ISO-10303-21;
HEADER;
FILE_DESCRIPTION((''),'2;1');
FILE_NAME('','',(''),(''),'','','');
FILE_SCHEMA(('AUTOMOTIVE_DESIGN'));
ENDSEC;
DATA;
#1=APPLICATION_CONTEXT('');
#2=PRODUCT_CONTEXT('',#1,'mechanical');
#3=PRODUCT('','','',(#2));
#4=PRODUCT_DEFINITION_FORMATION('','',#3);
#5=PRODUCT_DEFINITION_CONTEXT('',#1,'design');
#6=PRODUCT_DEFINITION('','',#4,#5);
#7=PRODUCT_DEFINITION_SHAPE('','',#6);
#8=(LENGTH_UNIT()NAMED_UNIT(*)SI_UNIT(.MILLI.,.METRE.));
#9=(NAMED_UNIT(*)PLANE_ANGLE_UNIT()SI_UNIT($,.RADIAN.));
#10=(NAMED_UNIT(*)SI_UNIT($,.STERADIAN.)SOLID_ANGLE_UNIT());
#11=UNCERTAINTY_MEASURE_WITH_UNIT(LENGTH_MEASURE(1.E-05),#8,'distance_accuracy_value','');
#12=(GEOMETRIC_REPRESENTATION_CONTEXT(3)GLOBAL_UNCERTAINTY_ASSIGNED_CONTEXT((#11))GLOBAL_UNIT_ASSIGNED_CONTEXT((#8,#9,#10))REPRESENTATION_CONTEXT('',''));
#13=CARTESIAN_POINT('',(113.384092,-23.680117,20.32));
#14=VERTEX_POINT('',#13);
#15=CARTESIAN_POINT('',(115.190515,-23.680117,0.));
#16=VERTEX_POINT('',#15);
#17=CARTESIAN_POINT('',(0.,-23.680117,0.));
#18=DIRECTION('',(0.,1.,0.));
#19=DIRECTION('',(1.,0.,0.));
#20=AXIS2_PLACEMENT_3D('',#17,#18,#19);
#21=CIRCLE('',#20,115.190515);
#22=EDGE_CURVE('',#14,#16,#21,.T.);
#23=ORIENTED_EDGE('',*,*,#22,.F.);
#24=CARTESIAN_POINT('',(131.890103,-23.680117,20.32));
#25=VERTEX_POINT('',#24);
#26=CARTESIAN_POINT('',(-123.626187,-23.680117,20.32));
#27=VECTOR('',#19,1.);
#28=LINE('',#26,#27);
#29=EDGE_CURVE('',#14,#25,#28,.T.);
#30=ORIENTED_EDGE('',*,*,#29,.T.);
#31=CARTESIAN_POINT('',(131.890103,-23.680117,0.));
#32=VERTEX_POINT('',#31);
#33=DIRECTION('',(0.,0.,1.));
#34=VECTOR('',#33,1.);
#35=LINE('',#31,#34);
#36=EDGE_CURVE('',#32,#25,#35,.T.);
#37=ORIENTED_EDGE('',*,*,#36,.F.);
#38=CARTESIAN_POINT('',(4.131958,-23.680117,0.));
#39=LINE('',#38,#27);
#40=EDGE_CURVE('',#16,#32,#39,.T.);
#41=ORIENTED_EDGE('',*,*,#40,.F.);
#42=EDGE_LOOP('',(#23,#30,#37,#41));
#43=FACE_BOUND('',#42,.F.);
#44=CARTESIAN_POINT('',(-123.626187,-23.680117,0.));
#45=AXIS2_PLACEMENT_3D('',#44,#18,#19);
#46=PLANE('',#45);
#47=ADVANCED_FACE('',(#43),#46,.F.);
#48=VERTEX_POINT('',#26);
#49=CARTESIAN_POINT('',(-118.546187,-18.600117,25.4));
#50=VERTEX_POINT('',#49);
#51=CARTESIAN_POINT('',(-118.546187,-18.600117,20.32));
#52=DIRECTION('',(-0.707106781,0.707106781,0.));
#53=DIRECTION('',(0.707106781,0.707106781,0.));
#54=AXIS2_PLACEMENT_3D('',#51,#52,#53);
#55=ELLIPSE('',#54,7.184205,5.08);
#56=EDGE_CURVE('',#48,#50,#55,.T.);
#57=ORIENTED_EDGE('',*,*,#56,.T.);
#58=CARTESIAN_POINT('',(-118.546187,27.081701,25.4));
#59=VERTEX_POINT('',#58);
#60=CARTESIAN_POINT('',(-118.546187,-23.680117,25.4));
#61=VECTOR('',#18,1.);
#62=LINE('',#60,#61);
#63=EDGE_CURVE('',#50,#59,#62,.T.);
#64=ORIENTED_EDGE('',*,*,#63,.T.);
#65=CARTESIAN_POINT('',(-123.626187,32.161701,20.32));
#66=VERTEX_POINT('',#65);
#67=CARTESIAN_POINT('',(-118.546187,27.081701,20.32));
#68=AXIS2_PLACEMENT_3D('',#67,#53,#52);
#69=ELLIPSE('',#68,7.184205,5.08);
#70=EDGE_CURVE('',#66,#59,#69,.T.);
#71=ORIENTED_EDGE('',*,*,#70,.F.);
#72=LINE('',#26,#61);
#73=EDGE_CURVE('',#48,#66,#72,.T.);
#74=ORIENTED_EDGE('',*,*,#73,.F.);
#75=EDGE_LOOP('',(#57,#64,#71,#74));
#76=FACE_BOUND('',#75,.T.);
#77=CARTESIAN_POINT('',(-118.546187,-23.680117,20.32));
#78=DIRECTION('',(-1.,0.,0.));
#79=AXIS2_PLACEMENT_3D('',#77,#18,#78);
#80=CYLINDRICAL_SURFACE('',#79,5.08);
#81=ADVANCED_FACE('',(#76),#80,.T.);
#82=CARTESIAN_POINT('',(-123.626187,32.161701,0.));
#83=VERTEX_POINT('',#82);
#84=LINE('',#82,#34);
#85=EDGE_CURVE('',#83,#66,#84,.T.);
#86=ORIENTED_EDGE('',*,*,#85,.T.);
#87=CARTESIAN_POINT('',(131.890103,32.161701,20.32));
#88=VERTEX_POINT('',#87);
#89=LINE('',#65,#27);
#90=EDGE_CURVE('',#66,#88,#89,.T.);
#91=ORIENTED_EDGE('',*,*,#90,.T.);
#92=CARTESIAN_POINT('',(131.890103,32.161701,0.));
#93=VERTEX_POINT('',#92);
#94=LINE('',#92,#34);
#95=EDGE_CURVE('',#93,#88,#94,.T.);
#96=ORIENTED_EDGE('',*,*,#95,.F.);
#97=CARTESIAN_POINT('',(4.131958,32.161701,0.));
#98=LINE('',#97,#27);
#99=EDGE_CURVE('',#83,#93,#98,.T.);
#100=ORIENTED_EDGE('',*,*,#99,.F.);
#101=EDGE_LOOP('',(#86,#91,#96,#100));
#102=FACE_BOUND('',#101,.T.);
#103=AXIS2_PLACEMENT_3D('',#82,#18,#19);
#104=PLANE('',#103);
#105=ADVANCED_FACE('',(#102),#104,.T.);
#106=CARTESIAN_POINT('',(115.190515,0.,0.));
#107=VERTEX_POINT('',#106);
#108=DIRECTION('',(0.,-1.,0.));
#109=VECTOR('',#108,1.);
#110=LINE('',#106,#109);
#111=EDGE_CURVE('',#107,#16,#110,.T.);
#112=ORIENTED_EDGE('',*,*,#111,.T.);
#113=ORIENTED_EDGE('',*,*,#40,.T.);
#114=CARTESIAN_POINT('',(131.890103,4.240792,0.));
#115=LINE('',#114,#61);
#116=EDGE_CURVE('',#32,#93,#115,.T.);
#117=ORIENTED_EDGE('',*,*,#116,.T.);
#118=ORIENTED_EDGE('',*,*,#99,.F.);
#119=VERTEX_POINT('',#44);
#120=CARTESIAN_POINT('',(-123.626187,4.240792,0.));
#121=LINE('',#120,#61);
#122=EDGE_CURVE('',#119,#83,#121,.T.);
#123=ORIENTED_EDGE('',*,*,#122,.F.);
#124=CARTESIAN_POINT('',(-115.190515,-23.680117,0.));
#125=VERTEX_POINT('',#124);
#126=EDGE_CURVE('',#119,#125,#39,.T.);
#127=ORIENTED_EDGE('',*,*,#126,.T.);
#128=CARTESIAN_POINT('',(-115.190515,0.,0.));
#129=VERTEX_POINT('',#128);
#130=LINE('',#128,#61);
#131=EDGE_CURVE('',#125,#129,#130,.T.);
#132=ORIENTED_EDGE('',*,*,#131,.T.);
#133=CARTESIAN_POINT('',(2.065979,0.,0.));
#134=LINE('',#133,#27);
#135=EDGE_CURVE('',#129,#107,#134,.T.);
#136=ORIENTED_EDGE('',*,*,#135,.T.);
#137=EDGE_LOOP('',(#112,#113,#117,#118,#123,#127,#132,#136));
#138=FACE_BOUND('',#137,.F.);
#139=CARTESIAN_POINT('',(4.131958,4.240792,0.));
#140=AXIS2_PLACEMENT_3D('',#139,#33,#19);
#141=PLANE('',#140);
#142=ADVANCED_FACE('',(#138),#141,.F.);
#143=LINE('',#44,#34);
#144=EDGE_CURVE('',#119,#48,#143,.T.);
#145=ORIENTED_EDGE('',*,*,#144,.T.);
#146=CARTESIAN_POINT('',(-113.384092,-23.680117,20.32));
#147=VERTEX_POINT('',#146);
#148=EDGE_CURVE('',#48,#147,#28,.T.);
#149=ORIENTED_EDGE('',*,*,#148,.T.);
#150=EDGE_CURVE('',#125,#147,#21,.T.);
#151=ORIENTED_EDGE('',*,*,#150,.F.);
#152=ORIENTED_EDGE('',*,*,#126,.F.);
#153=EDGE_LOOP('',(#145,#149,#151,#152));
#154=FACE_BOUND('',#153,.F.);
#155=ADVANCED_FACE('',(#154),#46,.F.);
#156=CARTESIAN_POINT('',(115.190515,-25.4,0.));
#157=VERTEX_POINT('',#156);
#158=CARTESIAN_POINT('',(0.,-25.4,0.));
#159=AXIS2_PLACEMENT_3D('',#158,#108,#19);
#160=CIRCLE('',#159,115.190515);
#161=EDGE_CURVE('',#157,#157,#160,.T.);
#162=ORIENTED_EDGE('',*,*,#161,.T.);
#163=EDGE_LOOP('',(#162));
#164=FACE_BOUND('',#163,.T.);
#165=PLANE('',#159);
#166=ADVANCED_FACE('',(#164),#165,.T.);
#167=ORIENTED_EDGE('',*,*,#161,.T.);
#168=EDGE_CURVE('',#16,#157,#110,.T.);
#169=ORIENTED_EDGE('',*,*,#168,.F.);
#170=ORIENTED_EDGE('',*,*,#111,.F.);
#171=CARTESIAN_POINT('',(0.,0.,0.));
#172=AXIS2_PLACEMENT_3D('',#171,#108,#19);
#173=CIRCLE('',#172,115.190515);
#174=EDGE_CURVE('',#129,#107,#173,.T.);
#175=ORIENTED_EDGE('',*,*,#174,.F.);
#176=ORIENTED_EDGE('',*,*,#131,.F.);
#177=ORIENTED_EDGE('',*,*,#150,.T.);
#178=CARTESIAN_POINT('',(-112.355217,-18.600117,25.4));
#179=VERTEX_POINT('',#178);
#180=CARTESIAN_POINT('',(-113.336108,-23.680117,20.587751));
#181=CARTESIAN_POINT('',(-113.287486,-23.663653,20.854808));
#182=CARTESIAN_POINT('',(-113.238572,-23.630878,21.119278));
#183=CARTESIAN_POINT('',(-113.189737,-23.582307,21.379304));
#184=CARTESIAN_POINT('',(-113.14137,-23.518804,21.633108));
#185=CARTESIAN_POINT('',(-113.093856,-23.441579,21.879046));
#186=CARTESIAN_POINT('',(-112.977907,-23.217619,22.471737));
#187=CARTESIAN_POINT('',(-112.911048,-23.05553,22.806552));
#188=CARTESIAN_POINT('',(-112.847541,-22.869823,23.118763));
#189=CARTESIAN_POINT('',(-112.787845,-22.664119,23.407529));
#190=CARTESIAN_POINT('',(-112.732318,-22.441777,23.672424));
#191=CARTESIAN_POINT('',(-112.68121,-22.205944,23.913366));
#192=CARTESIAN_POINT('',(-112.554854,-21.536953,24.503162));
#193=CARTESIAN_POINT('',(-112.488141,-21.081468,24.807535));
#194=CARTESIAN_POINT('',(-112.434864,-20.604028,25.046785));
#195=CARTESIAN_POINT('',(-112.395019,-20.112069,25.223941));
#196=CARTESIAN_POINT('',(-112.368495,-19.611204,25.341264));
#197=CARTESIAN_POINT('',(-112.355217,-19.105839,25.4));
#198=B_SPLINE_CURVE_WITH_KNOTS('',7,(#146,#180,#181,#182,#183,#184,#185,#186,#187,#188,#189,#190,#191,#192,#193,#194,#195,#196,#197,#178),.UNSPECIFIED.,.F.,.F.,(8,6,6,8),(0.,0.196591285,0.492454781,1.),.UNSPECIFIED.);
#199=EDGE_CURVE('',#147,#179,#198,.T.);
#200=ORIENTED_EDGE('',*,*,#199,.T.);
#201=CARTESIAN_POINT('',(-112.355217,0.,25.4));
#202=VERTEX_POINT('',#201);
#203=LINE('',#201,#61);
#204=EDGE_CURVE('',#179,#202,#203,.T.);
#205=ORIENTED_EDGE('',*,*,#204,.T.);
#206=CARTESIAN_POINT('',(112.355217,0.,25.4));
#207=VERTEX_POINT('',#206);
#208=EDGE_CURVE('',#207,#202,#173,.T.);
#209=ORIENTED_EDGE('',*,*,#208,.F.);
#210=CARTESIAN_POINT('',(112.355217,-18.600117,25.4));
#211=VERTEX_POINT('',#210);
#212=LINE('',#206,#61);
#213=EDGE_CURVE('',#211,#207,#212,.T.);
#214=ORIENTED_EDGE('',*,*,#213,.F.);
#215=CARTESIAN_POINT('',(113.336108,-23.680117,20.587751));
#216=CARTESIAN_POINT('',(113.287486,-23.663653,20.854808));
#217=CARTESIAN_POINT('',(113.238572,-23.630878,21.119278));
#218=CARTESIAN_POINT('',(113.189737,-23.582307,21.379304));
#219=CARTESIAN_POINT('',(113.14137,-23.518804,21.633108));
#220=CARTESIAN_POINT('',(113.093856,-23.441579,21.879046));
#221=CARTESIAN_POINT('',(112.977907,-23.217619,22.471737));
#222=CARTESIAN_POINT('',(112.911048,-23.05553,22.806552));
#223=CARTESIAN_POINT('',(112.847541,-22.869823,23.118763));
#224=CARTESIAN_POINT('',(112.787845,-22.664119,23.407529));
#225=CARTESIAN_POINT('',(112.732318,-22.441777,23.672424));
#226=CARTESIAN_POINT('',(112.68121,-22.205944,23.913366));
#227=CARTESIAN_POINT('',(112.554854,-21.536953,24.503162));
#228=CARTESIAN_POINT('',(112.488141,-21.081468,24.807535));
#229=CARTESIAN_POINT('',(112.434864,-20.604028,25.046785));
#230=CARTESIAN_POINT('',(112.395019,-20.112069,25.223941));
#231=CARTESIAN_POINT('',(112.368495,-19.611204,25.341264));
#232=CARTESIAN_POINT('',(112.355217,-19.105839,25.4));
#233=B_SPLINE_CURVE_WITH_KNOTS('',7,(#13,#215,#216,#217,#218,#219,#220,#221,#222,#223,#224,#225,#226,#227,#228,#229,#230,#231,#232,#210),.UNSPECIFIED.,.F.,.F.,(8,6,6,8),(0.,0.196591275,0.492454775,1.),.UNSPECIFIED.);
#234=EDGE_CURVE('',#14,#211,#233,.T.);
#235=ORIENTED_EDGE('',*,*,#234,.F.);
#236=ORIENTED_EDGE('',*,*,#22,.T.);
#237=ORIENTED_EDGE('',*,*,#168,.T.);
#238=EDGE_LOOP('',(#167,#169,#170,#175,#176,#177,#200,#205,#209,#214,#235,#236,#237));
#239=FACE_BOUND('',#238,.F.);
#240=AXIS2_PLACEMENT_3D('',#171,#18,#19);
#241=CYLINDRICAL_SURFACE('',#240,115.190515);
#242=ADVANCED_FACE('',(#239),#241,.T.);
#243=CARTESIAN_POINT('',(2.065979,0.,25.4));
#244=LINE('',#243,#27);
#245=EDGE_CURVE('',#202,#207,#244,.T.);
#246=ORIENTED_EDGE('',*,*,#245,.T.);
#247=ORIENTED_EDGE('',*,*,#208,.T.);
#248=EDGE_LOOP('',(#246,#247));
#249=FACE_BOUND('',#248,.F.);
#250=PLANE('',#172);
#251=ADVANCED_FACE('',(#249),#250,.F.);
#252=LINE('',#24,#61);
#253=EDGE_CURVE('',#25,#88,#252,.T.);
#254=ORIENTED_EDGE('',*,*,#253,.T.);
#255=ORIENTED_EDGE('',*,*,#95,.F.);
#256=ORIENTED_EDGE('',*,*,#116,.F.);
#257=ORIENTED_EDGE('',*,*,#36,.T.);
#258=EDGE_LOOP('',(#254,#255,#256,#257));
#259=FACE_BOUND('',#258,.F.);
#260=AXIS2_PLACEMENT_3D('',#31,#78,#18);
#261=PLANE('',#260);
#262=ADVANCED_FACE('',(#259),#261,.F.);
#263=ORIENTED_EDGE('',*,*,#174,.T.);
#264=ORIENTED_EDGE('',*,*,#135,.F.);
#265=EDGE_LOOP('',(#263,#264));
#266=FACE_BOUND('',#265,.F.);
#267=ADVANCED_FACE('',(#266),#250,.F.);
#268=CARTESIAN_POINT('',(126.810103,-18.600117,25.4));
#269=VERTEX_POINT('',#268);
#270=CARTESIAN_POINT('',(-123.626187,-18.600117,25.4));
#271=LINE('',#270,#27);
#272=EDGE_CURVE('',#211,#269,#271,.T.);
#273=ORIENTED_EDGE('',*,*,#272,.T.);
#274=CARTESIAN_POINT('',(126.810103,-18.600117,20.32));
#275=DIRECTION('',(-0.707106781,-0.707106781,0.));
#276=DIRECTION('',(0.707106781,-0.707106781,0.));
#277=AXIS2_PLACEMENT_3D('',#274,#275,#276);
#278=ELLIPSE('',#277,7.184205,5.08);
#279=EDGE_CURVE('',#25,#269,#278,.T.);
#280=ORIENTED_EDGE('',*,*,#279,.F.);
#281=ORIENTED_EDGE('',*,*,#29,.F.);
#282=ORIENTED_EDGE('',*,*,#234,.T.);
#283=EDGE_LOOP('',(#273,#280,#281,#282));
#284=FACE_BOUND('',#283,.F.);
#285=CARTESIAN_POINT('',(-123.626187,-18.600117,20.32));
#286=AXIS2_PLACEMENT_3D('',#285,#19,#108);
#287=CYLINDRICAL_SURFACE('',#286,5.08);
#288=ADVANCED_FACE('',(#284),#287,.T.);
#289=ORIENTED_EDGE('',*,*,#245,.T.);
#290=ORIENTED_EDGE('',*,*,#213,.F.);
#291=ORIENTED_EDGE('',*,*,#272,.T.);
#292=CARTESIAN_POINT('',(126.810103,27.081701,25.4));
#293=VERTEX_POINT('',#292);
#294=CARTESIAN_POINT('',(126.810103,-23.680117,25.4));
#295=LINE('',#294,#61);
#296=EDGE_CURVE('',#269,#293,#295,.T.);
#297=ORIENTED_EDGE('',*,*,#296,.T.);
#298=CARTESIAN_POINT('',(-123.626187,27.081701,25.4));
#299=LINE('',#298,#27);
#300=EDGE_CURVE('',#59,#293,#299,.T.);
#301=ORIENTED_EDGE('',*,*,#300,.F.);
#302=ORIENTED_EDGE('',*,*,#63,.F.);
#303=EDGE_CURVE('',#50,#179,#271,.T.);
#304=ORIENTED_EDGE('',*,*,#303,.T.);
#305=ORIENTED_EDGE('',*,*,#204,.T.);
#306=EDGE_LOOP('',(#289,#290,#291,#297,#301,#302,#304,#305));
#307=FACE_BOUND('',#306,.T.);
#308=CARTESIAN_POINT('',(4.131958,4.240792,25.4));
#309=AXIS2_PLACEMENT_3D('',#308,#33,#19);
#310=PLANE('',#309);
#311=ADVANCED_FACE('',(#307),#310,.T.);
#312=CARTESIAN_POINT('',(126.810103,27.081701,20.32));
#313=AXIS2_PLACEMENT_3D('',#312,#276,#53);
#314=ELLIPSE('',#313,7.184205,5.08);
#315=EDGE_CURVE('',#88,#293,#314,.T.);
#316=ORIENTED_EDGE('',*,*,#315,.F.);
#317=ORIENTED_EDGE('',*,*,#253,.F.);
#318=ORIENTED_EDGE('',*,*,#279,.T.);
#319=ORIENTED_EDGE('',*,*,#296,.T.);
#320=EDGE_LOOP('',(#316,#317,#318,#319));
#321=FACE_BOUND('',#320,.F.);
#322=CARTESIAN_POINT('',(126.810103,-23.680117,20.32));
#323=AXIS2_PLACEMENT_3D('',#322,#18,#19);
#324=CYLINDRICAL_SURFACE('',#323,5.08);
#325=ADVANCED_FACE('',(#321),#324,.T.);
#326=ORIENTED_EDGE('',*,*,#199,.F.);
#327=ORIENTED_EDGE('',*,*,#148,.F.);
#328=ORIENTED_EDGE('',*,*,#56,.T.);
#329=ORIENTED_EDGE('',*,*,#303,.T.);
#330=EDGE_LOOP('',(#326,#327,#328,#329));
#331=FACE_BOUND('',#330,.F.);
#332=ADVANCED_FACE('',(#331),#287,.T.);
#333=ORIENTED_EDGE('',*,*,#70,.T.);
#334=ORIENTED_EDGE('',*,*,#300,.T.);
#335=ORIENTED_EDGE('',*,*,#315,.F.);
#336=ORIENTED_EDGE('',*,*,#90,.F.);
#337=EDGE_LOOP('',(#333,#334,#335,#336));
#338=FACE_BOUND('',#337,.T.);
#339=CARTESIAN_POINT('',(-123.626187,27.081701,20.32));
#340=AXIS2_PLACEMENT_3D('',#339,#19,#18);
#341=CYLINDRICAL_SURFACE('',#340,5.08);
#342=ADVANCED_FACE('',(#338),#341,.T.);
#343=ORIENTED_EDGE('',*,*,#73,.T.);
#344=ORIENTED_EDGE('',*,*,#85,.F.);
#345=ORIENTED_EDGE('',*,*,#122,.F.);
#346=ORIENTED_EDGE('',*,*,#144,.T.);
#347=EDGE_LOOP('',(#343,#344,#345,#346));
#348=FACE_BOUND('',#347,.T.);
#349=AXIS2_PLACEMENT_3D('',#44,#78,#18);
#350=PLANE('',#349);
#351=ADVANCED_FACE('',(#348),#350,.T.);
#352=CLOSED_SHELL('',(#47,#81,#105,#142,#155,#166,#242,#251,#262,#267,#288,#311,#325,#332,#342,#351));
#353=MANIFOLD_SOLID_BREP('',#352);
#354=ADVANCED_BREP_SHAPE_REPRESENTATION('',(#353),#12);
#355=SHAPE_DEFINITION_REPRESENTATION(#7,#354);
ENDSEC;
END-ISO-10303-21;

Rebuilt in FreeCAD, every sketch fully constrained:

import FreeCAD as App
import Part
import Sketcher
Q = App.Units.Quantity


def edges_at(feature, points):
    """Names of the edges that pass closest to the given points."""
    edges = feature.Shape.Edges
    near = lambda p: min(range(len(edges)), key=lambda i: edges[i].distToShape(Part.Vertex(*p))[0])
    return sorted({f"Edge{near(p) + 1}" for p in points})


def add_polygon(sketch, points):
    """Adds a closed chain of lines whose ends are joined by coincident constraints."""
    first, n = sketch.GeometryCount, len(points)
    for a, b in zip(points, points[1:] + points[:1]):
        sketch.addGeometry(Part.LineSegment(App.Vector(*a, 0), App.Vector(*b, 0)), False)
    for i in range(n):
        sketch.addConstraint(Sketcher.Constraint("Coincident", first + i, 2, first + (i + 1) % n, 1))

doc = App.newDocument("Part")
body = doc.addObject("PartDesign::Body", "Body")

sketch1 = body.newObject("Sketcher::SketchObject", "Sketch")
sketch1.AttachmentSupport = (doc.getObject("XY_Plane"), [""])
sketch1.MapMode = "FlatFace"
add_polygon(sketch1, [(-124, 32), (-124, -24), (132, -24), (132, 32)])
sketch1.addConstraint([
    Sketcher.Constraint("Vertical", 0),
    Sketcher.Constraint("Horizontal", 1),
    Sketcher.Constraint("Vertical", 2),
    Sketcher.Constraint("Horizontal", 3),
    Sketcher.Constraint("DistanceX", 1, 1, 1, 2, Q("255.516291 mm")),
    Sketcher.Constraint("DistanceY", 0, 2, 0, 1, Q("55.841818 mm")),
    Sketcher.Constraint("DistanceY", -1, 1, 2, 2, Q("32.161701 mm")),
    Sketcher.Constraint("DistanceX", 0, 2, -1, 1, Q("123.626187 mm")),
])
pad1 = body.newObject("PartDesign::Pad", "Pad")
pad1.Profile = sketch1
pad1.Length = Q("1 in")
doc.recompute()

fillet = body.newObject("PartDesign::Fillet", "Fillet")
fillet.Base = (pad1, edges_at(pad1, [
    (-123.626, 4.241, 25.4),
    (4.132, -23.68, 25.4),
    (131.89, 4.241, 25.4),
    (4.132, 32.162, 25.4),
]))
fillet.Radius = Q("0.2 in")

sketch2 = body.newObject("Sketcher::SketchObject", "Sketch001")
sketch2.AttachmentSupport = (doc.getObject("XZ_Plane"), [""])
sketch2.MapMode = "FlatFace"
sketch2.addGeometry(Part.Circle(App.Vector(0, 0, 0), App.Vector(0, 0, 1), 115), False)
sketch2.addConstraint([
    Sketcher.Constraint("Coincident", 0, 3, -1, 1),
    Sketcher.Constraint("Diameter", 0, Q("230.38103 mm")),
])
pad2 = body.newObject("PartDesign::Pad", "Pad001")
pad2.Profile = sketch2
pad2.Length = Q("1 in")

doc.recompute()
